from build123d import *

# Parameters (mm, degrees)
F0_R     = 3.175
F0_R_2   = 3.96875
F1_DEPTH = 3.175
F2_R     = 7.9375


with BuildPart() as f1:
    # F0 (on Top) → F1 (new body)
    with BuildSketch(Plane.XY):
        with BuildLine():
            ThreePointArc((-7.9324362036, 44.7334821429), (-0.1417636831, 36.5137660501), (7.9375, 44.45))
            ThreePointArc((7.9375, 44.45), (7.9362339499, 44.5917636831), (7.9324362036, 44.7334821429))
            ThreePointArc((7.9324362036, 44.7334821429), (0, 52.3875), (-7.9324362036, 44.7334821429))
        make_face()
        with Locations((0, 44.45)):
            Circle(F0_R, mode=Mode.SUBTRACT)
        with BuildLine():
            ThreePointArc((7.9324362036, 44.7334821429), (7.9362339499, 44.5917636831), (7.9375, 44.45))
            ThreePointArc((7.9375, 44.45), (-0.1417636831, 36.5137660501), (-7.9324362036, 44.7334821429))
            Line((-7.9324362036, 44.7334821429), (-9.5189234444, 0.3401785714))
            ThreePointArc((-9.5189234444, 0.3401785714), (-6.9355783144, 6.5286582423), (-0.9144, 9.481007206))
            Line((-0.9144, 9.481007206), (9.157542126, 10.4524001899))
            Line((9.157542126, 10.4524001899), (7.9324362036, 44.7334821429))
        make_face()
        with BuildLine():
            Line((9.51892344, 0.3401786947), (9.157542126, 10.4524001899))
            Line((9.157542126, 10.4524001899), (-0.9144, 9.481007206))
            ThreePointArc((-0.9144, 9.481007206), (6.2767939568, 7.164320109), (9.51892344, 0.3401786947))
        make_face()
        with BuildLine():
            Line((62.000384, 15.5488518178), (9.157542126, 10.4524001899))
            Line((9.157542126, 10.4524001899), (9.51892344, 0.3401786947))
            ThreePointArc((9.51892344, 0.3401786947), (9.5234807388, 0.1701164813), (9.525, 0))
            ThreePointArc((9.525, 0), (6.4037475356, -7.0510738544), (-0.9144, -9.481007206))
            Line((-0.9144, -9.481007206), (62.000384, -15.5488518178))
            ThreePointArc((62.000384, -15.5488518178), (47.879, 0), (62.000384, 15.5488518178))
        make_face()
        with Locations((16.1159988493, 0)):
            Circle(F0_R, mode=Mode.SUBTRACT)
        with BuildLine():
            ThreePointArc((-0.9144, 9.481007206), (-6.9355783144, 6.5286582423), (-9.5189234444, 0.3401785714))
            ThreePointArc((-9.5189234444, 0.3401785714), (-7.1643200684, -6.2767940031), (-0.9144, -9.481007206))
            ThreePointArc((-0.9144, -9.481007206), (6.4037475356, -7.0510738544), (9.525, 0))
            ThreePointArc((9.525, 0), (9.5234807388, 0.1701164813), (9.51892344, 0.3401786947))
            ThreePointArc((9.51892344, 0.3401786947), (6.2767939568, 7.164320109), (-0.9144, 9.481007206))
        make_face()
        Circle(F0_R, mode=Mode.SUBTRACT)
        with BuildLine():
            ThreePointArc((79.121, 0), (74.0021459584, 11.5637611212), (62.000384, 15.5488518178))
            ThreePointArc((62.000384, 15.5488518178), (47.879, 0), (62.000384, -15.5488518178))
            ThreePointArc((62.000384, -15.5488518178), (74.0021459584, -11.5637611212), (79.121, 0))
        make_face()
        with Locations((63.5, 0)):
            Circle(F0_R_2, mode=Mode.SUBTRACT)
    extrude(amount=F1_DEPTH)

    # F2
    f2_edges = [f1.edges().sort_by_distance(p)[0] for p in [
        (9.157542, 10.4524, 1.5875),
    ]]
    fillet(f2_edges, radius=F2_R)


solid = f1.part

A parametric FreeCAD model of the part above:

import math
import FreeCAD as App
import Part
import Sketcher
Q = App.Units.Quantity


def edges_at(feature, points):
    """Names of the edges that pass closest to the given points."""
    edges = feature.Shape.Edges
    near = lambda p: min(range(len(edges)), key=lambda i: edges[i].distToShape(Part.Vertex(*p))[0])
    return sorted({f"Edge{near(p) + 1}" for p in points})

doc = App.newDocument("Part")
body = doc.addObject("PartDesign::Body", "Body")

# Sketch on XY plane
sketch1 = doc.addObject("Sketcher::SketchObject", "Sketch")
body.addObject(sketch1)
sketch1.AttachmentSupport = (doc.XY_Plane, [""])
sketch1.MapMode = "FlatFace"
sketch1.addGeometry([
    Part.LineSegment(App.Vector(9.157542, 10.4524, 0), App.Vector(7.932436, 44.733482, 0)),  # 0
    Part.ArcOfCircle(Part.Circle(App.Vector(0, 44.45, 0), App.Vector(0, 0, 1), 7.9375), math.radians(2.046713), math.radians(177.953287)),  # 1
    Part.LineSegment(App.Vector(-7.932436, 44.733482, 0), App.Vector(-9.518923, 0.340179, 0)),  # 2
    Part.ArcOfCircle(Part.Circle(App.Vector(0, 0, 0), App.Vector(0, 0, 1), 9.525), math.radians(177.953287), math.radians(264.491121)),  # 3
    Part.LineSegment(App.Vector(-0.9144, -9.481007, 0), App.Vector(62.000384, -15.548852, 0)),  # 4
    Part.ArcOfCircle(Part.Circle(App.Vector(63.5, 0, 0), App.Vector(0, 0, 1), 15.621), math.radians(-95.508879), math.radians(95.508879)),  # 5
    Part.LineSegment(App.Vector(62.000384, 15.548852, 0), App.Vector(9.157542, 10.4524, 0)),  # 6
    Part.Circle(App.Vector(0, 0, 0), App.Vector(0, 0, 1), 3.175),  # 7
    Part.Circle(App.Vector(16.115999, 0, 0), App.Vector(0, 0, 1), 3.175),  # 8
    Part.Circle(App.Vector(63.5, 0, 0), App.Vector(0, 0, 1), 3.96875),  # 9
    Part.Circle(App.Vector(0, 44.45, 0), App.Vector(0, 0, 1), 3.175),  # 10
], False)
sketch1.addConstraint([
    Sketcher.Constraint("Tangent", 0, 2, 1, 1),
    Sketcher.Constraint("Tangent", 1, 2, 2, 1),
    Sketcher.Constraint("Tangent", 2, 2, 3, 1),
    Sketcher.Constraint("Tangent", 3, 2, 4, 1),
    Sketcher.Constraint("Tangent", 4, 2, 5, 1),
    Sketcher.Constraint("Tangent", 5, 2, 6, 1),
    Sketcher.Constraint("Coincident", 6, 2, 0, 1),
    Sketcher.Constraint("Coincident", 3, 3, -1, 1),
    Sketcher.Constraint("Coincident", 7, 3, -1, 1),
    Sketcher.Constraint("Coincident", 9, 3, 5, 3),
    Sketcher.Constraint("Coincident", 10, 3, 1, 3),
    Sketcher.Constraint("Equal", 7, 8),
    Sketcher.Constraint("Equal", 8, 10),
    Sketcher.Constraint("Symmetric", 0, 2, 1, 2, -2),
    Sketcher.Constraint("Symmetric", 4, 2, 5, 2, -1),
    Sketcher.Constraint("PointOnObject", 8, 3, -1),
    Sketcher.Constraint("Diameter", 7, Q("0.25 in")),
    Sketcher.Constraint("Diameter", 9, Q("0.3125 in")),
    Sketcher.Constraint("Radius", 1, Q("0.3125 in")),
    Sketcher.Constraint("Radius", 3, Q("0.375 in")),
    Sketcher.Constraint("Radius", 5, Q("0.615 in")),
    Sketcher.Constraint("DistanceX", -1, 1, 5, 3, Q("2.5 in")),
    Sketcher.Constraint("DistanceY", -1, 1, 1, 3, Q("1.75 in")),
    Sketcher.Constraint("DistanceX", -1, 1, 8, 3, Q("16.115999 mm")),
])
pad1 = doc.addObject("PartDesign::Pad", "Pad")
body.addObject(pad1)
pad1.Profile = sketch1
pad1.Length = Q("0.125 in")
doc.recompute()

fillet = doc.addObject("PartDesign::Fillet", "Fillet")
body.addObject(fillet)
fillet.Base = (pad1, edges_at(pad1, [(9.158, 10.452, 1.587)]))
fillet.Radius = Q("0.3125 in")

doc.recompute()
